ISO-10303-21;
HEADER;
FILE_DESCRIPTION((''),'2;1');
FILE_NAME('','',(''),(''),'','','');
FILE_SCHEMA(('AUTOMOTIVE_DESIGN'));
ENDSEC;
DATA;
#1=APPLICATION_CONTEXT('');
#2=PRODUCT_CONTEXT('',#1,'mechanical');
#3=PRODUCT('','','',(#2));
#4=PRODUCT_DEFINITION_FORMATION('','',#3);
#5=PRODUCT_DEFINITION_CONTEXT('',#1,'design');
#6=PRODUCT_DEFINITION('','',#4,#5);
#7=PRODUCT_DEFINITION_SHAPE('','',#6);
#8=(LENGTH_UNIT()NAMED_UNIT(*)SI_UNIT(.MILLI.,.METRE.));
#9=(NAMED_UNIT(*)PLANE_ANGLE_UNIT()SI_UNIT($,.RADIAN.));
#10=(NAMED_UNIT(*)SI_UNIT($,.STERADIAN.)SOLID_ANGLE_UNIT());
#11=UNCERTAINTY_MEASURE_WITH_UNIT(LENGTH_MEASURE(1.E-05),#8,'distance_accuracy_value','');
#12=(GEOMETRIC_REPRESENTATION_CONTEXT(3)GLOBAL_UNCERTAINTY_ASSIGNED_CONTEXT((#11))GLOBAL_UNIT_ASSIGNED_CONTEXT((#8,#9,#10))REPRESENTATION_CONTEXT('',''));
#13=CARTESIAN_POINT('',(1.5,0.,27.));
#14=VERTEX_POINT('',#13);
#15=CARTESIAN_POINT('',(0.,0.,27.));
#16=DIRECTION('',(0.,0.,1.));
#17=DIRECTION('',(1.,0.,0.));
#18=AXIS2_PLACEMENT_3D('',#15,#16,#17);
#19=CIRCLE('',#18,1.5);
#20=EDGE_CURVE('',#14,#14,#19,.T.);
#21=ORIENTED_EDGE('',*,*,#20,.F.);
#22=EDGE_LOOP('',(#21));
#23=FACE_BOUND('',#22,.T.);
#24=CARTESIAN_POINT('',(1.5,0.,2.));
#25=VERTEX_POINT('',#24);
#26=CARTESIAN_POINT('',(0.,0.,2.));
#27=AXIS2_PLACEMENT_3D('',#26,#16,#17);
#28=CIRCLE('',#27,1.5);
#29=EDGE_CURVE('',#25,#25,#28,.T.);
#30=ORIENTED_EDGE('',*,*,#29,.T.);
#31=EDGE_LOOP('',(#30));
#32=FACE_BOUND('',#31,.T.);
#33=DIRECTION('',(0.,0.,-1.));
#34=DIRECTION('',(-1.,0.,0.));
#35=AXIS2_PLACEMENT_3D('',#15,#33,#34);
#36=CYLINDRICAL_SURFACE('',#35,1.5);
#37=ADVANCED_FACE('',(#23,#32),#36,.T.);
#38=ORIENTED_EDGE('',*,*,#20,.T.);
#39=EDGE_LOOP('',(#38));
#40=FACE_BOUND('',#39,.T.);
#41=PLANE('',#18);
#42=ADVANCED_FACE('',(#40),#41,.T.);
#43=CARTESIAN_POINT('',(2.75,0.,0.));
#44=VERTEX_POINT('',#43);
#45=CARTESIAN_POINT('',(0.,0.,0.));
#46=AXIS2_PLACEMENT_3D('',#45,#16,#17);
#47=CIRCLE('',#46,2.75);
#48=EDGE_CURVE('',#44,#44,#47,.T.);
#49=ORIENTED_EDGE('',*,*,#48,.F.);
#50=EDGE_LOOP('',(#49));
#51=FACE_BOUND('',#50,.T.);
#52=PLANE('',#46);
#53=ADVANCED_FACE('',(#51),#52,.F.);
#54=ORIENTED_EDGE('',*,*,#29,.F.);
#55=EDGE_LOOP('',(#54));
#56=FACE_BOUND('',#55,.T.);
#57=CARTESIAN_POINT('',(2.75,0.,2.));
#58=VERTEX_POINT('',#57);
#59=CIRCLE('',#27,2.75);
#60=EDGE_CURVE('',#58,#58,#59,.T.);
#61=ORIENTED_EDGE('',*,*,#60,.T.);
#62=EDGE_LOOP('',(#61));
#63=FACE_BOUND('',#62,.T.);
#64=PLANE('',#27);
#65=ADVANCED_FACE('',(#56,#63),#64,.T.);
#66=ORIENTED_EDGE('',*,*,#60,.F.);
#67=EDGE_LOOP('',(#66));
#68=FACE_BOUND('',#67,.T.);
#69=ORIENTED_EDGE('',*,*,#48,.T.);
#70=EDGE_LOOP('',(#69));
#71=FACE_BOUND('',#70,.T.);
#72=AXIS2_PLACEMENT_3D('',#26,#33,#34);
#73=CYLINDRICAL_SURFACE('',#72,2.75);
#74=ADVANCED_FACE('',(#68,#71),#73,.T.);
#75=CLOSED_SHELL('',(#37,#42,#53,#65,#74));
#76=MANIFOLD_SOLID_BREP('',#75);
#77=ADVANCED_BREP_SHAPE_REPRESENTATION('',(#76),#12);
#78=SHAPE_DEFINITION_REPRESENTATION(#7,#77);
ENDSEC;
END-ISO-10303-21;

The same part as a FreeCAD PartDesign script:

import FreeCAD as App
import Part
import Sketcher

doc = App.newDocument("Part")
body = doc.addObject("PartDesign::Body", "Body")

# Sketch on XY plane
sketch1 = doc.addObject("Sketcher::SketchObject", "Sketch")
body.addObject(sketch1)
sketch1.AttachmentSupport = (doc.XY_Plane, [""])
sketch1.MapMode = "FlatFace"
sketch1.addGeometry(Part.Circle(App.Vector(0, 0, 0), App.Vector(0, 0, 1), 2.8), False)
sketch1.addConstraint([
    Sketcher.Constraint("Coincident", 0, 3, -1, 1),
    Sketcher.Constraint("Diameter", 0, 5.5),
])
pad1 = doc.addObject("PartDesign::Pad", "Pad")
body.addObject(pad1)
pad1.Profile = sketch1
pad1.Length = 2

# Sketch on XY plane
sketch2 = doc.addObject("Sketcher::SketchObject", "Sketch001")
body.addObject(sketch2)
sketch2.AttachmentSupport = (doc.XY_Plane, [""])
sketch2.MapMode = "FlatFace"
sketch2.AttachmentOffset = App.Placement(App.Vector(0, 0, 2), App.Rotation())
sketch2.addGeometry(Part.Circle(App.Vector(0, 0, 0), App.Vector(0, 0, 1), 1.5), False)
sketch2.addConstraint([
    Sketcher.Constraint("Coincident", 0, 3, -1, 1),
    Sketcher.Constraint("Diameter", 0, 3.0),
])
pad2 = doc.addObject("PartDesign::Pad", "Pad001")
body.addObject(pad2)
pad2.Profile = sketch2
pad2.Length = 25

doc.recompute()
